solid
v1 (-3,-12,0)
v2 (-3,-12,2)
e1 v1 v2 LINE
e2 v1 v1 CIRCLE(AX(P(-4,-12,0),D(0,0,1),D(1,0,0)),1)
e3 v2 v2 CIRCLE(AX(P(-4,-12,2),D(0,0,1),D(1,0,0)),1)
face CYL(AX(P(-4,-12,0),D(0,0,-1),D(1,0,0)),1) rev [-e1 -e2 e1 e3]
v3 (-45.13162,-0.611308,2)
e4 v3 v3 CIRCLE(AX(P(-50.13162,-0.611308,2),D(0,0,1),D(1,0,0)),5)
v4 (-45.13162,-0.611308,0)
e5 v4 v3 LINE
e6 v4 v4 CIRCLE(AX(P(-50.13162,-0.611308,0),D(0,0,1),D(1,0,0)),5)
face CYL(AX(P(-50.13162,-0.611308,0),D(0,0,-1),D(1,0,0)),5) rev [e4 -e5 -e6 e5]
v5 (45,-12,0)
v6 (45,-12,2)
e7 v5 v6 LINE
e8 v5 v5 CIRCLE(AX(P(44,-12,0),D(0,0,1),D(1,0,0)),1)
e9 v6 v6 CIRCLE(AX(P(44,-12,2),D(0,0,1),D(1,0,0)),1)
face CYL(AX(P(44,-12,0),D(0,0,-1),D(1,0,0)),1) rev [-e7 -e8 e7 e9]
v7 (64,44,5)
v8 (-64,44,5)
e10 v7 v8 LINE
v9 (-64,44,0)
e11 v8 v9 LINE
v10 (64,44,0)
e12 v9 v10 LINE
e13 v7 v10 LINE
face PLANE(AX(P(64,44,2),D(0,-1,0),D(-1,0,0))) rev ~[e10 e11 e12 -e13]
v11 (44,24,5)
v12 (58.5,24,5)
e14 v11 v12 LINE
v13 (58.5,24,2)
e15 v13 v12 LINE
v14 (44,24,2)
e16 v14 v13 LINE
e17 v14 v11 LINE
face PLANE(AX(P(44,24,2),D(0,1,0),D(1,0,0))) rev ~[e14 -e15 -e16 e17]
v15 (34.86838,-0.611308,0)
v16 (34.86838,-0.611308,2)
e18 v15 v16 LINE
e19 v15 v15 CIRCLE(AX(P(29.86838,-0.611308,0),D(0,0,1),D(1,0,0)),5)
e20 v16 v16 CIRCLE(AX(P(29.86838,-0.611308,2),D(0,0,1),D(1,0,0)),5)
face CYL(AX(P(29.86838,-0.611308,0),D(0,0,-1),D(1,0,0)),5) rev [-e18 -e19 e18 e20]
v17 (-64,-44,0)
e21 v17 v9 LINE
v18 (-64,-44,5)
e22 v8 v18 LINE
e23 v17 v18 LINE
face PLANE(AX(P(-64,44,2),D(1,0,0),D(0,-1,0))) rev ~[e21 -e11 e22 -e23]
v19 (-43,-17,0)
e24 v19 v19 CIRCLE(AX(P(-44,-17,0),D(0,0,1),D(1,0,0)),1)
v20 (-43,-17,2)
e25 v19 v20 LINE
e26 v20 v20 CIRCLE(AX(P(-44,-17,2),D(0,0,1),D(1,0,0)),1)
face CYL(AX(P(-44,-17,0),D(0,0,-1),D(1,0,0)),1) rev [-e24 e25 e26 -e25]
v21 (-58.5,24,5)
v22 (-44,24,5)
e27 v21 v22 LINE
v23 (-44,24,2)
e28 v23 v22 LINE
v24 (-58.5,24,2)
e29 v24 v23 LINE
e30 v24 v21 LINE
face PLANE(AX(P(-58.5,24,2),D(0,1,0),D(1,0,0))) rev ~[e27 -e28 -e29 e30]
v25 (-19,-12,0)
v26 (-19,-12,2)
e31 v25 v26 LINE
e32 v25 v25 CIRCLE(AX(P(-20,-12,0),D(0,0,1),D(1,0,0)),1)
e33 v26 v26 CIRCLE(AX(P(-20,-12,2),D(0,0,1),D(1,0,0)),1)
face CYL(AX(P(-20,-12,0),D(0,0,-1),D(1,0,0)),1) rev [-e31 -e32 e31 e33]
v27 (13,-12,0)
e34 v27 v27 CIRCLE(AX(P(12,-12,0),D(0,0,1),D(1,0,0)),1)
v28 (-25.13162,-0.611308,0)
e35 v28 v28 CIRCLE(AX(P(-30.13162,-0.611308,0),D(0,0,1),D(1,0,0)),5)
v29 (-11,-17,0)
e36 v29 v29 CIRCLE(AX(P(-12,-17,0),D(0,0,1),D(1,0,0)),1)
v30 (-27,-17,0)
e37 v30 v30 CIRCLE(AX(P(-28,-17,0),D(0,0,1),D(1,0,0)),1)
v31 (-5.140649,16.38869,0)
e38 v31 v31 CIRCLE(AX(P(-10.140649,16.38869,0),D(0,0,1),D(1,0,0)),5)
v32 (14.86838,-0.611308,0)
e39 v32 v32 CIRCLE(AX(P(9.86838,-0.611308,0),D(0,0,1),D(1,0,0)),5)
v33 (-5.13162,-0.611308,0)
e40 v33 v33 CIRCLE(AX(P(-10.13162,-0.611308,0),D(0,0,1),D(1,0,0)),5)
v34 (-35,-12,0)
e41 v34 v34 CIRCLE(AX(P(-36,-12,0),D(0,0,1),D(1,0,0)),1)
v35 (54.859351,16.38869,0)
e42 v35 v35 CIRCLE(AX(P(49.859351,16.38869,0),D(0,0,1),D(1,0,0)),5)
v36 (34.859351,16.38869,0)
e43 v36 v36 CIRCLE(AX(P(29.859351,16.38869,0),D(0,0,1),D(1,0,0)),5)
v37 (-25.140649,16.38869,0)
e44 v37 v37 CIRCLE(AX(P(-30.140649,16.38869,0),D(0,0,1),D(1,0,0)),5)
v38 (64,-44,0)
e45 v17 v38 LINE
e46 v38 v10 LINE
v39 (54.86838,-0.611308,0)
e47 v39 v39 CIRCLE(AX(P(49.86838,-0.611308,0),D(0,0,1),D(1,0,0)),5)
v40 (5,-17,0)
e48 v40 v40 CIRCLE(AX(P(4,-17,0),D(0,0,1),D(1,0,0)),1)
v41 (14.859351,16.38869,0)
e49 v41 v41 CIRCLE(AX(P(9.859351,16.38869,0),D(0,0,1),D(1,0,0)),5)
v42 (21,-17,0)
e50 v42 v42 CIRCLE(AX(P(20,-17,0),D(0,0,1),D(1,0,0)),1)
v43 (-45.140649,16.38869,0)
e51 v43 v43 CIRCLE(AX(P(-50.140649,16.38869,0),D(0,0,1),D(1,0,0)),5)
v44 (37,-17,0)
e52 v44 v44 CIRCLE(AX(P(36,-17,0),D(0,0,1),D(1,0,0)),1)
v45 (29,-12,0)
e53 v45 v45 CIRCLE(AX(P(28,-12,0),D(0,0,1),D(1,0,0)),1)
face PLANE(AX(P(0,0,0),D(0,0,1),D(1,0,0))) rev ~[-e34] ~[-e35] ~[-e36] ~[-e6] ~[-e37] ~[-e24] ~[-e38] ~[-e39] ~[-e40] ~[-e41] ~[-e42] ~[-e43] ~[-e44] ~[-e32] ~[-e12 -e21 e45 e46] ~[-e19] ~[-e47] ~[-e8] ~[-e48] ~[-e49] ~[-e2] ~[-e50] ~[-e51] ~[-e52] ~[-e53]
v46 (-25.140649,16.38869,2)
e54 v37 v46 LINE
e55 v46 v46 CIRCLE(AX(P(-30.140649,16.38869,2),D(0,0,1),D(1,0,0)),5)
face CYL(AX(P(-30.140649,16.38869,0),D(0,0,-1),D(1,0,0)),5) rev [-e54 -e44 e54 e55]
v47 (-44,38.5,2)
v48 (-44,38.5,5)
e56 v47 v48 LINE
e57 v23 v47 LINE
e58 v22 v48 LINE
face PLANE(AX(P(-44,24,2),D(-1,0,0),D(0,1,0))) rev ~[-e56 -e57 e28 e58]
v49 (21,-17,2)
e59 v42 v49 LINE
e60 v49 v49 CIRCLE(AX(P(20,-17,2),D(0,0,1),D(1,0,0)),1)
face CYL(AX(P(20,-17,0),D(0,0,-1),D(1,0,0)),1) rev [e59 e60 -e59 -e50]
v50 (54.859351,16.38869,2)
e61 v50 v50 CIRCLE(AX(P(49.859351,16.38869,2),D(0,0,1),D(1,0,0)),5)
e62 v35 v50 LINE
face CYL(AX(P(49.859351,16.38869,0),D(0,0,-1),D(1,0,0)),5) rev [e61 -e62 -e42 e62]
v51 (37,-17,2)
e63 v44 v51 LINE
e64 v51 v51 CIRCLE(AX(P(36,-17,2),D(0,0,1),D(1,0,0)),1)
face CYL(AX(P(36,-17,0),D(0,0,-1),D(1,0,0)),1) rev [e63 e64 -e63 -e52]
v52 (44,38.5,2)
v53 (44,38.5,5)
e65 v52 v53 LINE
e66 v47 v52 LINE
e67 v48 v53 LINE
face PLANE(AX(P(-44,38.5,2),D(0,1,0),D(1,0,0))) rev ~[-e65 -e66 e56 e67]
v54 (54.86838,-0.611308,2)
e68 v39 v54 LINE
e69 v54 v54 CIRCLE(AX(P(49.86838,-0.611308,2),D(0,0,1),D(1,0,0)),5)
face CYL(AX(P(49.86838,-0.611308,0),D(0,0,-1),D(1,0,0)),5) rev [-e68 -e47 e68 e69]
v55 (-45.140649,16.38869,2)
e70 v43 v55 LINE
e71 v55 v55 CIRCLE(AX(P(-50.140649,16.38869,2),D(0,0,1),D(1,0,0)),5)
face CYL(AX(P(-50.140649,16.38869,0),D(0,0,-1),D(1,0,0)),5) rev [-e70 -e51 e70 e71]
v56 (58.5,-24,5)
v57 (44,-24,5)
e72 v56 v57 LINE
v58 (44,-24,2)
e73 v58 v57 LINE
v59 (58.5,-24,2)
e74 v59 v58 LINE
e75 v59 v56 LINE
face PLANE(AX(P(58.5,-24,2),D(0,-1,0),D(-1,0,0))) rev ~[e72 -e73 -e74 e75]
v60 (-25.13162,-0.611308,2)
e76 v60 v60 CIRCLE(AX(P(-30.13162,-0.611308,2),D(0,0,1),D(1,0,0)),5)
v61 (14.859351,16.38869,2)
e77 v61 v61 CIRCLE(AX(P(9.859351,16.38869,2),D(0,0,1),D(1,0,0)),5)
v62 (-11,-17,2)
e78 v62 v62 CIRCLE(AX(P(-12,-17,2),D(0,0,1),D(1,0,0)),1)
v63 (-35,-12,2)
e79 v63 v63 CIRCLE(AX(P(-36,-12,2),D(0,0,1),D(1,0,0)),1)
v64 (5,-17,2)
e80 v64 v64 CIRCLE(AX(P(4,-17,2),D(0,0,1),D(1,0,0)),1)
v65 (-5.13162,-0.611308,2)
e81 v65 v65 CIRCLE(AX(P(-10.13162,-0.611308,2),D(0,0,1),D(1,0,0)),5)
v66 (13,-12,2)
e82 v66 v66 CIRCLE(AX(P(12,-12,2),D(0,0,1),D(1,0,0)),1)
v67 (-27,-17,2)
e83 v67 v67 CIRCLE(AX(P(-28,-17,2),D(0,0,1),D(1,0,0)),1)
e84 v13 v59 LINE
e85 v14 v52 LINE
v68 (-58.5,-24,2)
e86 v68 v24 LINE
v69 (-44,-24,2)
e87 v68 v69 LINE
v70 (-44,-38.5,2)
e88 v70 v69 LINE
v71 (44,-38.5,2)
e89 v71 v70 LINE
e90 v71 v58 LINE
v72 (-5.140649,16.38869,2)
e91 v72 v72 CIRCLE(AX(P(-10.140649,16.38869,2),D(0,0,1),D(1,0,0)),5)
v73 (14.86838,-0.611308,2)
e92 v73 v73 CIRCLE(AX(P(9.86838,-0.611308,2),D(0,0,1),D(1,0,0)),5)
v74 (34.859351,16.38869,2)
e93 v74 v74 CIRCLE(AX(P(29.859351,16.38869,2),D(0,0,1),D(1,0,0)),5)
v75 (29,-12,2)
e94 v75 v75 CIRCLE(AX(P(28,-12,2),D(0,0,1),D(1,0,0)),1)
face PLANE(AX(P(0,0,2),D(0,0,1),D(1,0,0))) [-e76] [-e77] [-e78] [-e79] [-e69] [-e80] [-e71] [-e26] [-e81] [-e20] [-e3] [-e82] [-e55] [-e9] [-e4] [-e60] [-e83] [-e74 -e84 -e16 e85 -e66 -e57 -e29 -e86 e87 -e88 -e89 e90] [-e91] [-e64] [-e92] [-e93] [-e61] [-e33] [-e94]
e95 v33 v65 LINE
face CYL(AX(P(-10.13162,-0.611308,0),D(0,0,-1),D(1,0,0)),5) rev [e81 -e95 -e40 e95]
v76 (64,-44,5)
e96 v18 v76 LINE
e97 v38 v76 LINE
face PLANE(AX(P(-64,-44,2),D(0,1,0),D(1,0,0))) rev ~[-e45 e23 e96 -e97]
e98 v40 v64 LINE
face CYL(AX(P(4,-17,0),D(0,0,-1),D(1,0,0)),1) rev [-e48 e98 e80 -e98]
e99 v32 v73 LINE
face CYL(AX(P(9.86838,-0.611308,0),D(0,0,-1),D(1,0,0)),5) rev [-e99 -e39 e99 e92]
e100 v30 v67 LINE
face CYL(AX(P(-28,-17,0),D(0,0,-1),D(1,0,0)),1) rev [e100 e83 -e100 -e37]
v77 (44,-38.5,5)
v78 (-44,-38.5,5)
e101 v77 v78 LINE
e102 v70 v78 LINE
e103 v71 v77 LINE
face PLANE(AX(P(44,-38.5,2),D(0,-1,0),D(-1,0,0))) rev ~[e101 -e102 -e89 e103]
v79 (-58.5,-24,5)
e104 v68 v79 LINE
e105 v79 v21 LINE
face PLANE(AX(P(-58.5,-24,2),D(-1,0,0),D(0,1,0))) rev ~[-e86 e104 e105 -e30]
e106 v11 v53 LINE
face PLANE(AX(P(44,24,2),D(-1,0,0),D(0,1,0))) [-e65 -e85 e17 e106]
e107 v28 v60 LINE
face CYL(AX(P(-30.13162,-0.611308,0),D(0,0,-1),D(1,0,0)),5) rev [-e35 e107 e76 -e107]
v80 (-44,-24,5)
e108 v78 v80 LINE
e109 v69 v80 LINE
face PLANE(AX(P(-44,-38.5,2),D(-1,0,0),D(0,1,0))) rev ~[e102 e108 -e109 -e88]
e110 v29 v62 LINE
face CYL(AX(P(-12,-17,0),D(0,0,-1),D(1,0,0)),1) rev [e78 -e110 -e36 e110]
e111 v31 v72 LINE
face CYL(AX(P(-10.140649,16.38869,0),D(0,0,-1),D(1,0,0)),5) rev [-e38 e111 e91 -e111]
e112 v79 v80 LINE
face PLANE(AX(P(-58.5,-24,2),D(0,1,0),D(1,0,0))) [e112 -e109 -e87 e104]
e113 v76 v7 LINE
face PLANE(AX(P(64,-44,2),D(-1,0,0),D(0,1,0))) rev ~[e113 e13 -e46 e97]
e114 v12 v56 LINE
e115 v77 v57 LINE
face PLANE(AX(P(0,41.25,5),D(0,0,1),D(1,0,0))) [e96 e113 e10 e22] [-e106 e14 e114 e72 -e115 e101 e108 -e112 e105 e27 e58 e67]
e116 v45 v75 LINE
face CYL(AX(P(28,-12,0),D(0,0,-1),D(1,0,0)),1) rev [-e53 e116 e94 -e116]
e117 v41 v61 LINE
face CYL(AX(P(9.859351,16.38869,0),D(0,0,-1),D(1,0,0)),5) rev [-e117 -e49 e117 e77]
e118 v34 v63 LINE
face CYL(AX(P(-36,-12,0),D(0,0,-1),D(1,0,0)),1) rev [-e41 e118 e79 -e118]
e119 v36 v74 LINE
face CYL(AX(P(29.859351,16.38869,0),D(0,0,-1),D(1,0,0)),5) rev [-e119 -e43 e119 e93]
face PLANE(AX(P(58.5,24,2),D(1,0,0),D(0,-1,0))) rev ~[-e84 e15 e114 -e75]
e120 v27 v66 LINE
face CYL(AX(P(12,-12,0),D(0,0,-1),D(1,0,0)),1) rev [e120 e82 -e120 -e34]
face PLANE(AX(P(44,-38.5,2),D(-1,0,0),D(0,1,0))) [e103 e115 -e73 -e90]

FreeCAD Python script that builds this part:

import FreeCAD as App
import Part
import Sketcher

V = App.Vector
Q = App.Units.Quantity


def add_polygon(sketch, points):
    """Adds a closed chain of lines whose ends are joined by coincident constraints."""
    first, n = sketch.GeometryCount, len(points)
    for a, b in zip(points, points[1:] + points[:1]):
        sketch.addGeometry(Part.LineSegment(App.Vector(*a, 0), App.Vector(*b, 0)), False)
    for i in range(n):
        sketch.addConstraint(Sketcher.Constraint("Coincident", first + i, 2, first + (i + 1) % n, 1))

doc = App.newDocument("Part")
body = doc.addObject("PartDesign::Body", "Body")

sketch1 = doc.addObject("Sketcher::SketchObject", "Sketch")
body.addObject(sketch1)
sketch1.AttachmentSupport = (doc.XY_Plane, [""])
sketch1.MapMode = "FlatFace"
add_polygon(sketch1, [(-64, 44), (-64, -44), (64, -44), (64, 44)])
sketch1.addGeometry(Part.Circle(V(-44, -17, 0), V(0, 0, 1), 1), False)
sketch1.addGeometry(Part.Circle(V(-28, -17, 0), V(0, 0, 1), 1), False)
sketch1.addGeometry(Part.Circle(V(-36, -12, 0), V(0, 0, 1), 1), False)
sketch1.addGeometry(Part.Circle(V(-12, -17, 0), V(0, 0, 1), 1), False)
sketch1.addGeometry(Part.Circle(V(-20, -12, 0), V(0, 0, 1), 1), False)
sketch1.addGeometry(Part.Circle(V(-4, -12, 0), V(0, 0, 1), 1), False)
sketch1.addGeometry(Part.Circle(V(-50.1, -0.6, 0), V(0, 0, 1), 5), False)
sketch1.addGeometry(Part.Circle(V(-30.1, -0.6, 0), V(0, 0, 1), 5), False)
sketch1.addGeometry(Part.Circle(V(-10.1, -0.6, 0), V(0, 0, 1), 5), False)
sketch1.addGeometry(Part.Circle(V(4, -17, 0), V(0, 0, 1), 1), False)
sketch1.addGeometry(Part.Circle(V(20, -17, 0), V(0, 0, 1), 1), False)
sketch1.addGeometry(Part.Circle(V(12, -12, 0), V(0, 0, 1), 1), False)
sketch1.addGeometry(Part.Circle(V(36, -17, 0), V(0, 0, 1), 1), False)
sketch1.addGeometry(Part.Circle(V(28, -12, 0), V(0, 0, 1), 1), False)
sketch1.addGeometry(Part.Circle(V(44, -12, 0), V(0, 0, 1), 1), False)
sketch1.addGeometry(Part.Circle(V(9.9, -0.6, 0), V(0, 0, 1), 5), False)
sketch1.addGeometry(Part.Circle(V(29.9, -0.6, 0), V(0, 0, 1), 5), False)
sketch1.addGeometry(Part.Circle(V(49.9, -0.6, 0), V(0, 0, 1), 5), False)
sketch1.addGeometry(Part.Circle(V(-50.1, 16.4, 0), V(0, 0, 1), 5), False)
sketch1.addGeometry(Part.Circle(V(-30.1, 16.4, 0), V(0, 0, 1), 5), False)
sketch1.addGeometry(Part.Circle(V(-10.1, 16.4, 0), V(0, 0, 1), 5), False)
sketch1.addGeometry(Part.Circle(V(9.9, 16.4, 0), V(0, 0, 1), 5), False)
sketch1.addGeometry(Part.Circle(V(29.9, 16.4, 0), V(0, 0, 1), 5), False)
sketch1.addGeometry(Part.Circle(V(49.9, 16.4, 0), V(0, 0, 1), 5), False)
sketch1.addConstraint(Sketcher.Constraint("Vertical", 0))
sketch1.addConstraint(Sketcher.Constraint("Horizontal", 1))
sketch1.addConstraint(Sketcher.Constraint("Vertical", 2))
sketch1.addConstraint(Sketcher.Constraint("Horizontal", 3))
sketch1.addConstraint(Sketcher.Constraint("Equal", 4, 5))
sketch1.addConstraint(Sketcher.Constraint("Equal", 5, 6))
sketch1.addConstraint(Sketcher.Constraint("Equal", 6, 7))
sketch1.addConstraint(Sketcher.Constraint("Equal", 7, 8))
sketch1.addConstraint(Sketcher.Constraint("Equal", 8, 9))
sketch1.addConstraint(Sketcher.Constraint("Equal", 10, 11))
sketch1.addConstraint(Sketcher.Constraint("Equal", 11, 12))
sketch1.addConstraint(Sketcher.Constraint("Equal", 9, 13))
sketch1.addConstraint(Sketcher.Constraint("Equal", 13, 14))
sketch1.addConstraint(Sketcher.Constraint("Equal", 14, 15))
sketch1.addConstraint(Sketcher.Constraint("Equal", 15, 16))
sketch1.addConstraint(Sketcher.Constraint("Equal", 16, 17))
sketch1.addConstraint(Sketcher.Constraint("Equal", 17, 18))
sketch1.addConstraint(Sketcher.Constraint("Equal", 12, 19))
sketch1.addConstraint(Sketcher.Constraint("Equal", 19, 20))
sketch1.addConstraint(Sketcher.Constraint("Equal", 20, 21))
sketch1.addConstraint(Sketcher.Constraint("Equal", 21, 22))
sketch1.addConstraint(Sketcher.Constraint("Equal", 22, 23))
sketch1.addConstraint(Sketcher.Constraint("Equal", 23, 24))
sketch1.addConstraint(Sketcher.Constraint("Equal", 24, 25))
sketch1.addConstraint(Sketcher.Constraint("Equal", 25, 26))
sketch1.addConstraint(Sketcher.Constraint("Equal", 26, 27))
sketch1.addConstraint(Sketcher.Constraint("Symmetric", 0, 2, 2, 2, -1, 1))
sketch1.addConstraint(Sketcher.Constraint("Horizontal", 4, 3, 5, 3))
sketch1.addConstraint(Sketcher.Constraint("Horizontal", 5, 3, 7, 3))
sketch1.addConstraint(Sketcher.Constraint("Horizontal", 6, 3, 8, 3))
sketch1.addConstraint(Sketcher.Constraint("Horizontal", 8, 3, 9, 3))
sketch1.addConstraint(Sketcher.Constraint("Horizontal", 10, 3, 11, 3))
sketch1.addConstraint(Sketcher.Constraint("Horizontal", 11, 3, 12, 3))
sketch1.addConstraint(Sketcher.Constraint("Horizontal", 7, 3, 13, 3))
sketch1.addConstraint(Sketcher.Constraint("Horizontal", 13, 3, 14, 3))
sketch1.addConstraint(Sketcher.Constraint("Horizontal", 9, 3, 15, 3))
sketch1.addConstraint(Sketcher.Constraint("Horizontal", 14, 3, 16, 3))
sketch1.addConstraint(Sketcher.Constraint("Horizontal", 15, 3, 17, 3))
sketch1.addConstraint(Sketcher.Constraint("Horizontal", 17, 3, 18, 3))
sketch1.addConstraint(Sketcher.Constraint("Horizontal", 12, 3, 19, 3))
sketch1.addConstraint(Sketcher.Constraint("Horizontal", 19, 3, 20, 3))
sketch1.addConstraint(Sketcher.Constraint("Horizontal", 20, 3, 21, 3))
sketch1.addConstraint(Sketcher.Constraint("Horizontal", 22, 3, 23, 3))
sketch1.addConstraint(Sketcher.Constraint("Horizontal", 23, 3, 24, 3))
sketch1.addConstraint(Sketcher.Constraint("Horizontal", 24, 3, 25, 3))
sketch1.addConstraint(Sketcher.Constraint("Horizontal", 25, 3, 26, 3))
sketch1.addConstraint(Sketcher.Constraint("Horizontal", 26, 3, 27, 3))
sketch1.addConstraint(Sketcher.Constraint("Diameter", 4, Q("2 mm")))
sketch1.addConstraint(Sketcher.Constraint("Diameter", 10, Q("10 mm")))
sketch1.addConstraint(Sketcher.Constraint("DistanceX", 1, 1, 1, 2, Q("128 mm")))
sketch1.addConstraint(Sketcher.Constraint("DistanceY", 0, 2, 0, 1, Q("88 mm")))
sketch1.addConstraint(Sketcher.Constraint("DistanceX", 4, 3, -1, 1, Q("44 mm")))
sketch1.addConstraint(Sketcher.Constraint("DistanceY", 4, 3, -1, 1, Q("17 mm")))
sketch1.addConstraint(Sketcher.Constraint("DistanceX", 5, 3, -1, 1, Q("28 mm")))
sketch1.addConstraint(Sketcher.Constraint("DistanceX", 6, 3, -1, 1, Q("36 mm")))
sketch1.addConstraint(Sketcher.Constraint("DistanceY", 6, 3, -1, 1, Q("12 mm")))
sketch1.addConstraint(Sketcher.Constraint("DistanceX", 7, 3, -1, 1, Q("12 mm")))
sketch1.addConstraint(Sketcher.Constraint("DistanceX", 8, 3, -1, 1, Q("20 mm")))
sketch1.addConstraint(Sketcher.Constraint("DistanceX", 9, 3, -1, 1, Q("4 mm")))
sketch1.addConstraint(Sketcher.Constraint("DistanceX", -1, 1, 13, 3, Q("4 mm")))
sketch1.addConstraint(Sketcher.Constraint("DistanceX", -1, 1, 14, 3, Q("20 mm")))
sketch1.addConstraint(Sketcher.Constraint("DistanceX", -1, 1, 15, 3, Q("12 mm")))
sketch1.addConstraint(Sketcher.Constraint("DistanceX", -1, 1, 16, 3, Q("36 mm")))
sketch1.addConstraint(Sketcher.Constraint("DistanceX", -1, 1, 17, 3, Q("28 mm")))
sketch1.addConstraint(Sketcher.Constraint("DistanceX", -1, 1, 18, 3, Q("44 mm")))
sketch1.addConstraint(Sketcher.Constraint("DistanceX", 10, 3, 11, 3, Q("20 mm")))
sketch1.addConstraint(Sketcher.Constraint("DistanceX", 11, 3, 12, 3, Q("20 mm")))
sketch1.addConstraint(Sketcher.Constraint("DistanceX", 12, 3, 19, 3, Q("20 mm")))
sketch1.addConstraint(Sketcher.Constraint("DistanceX", 19, 3, 20, 3, Q("20 mm")))
sketch1.addConstraint(Sketcher.Constraint("DistanceX", 20, 3, 21, 3, Q("20 mm")))
sketch1.addConstraint(Sketcher.Constraint("DistanceY", 10, 3, 22, 3, Q("16.999998 mm")))
sketch1.addConstraint(Sketcher.Constraint("DistanceX", 22, 3, 23, 3, Q("20 mm")))
sketch1.addConstraint(Sketcher.Constraint("DistanceX", 23, 3, 24, 3, Q("20 mm")))
sketch1.addConstraint(Sketcher.Constraint("DistanceX", 24, 3, 25, 3, Q("20 mm")))
sketch1.addConstraint(Sketcher.Constraint("DistanceX", 25, 3, 26, 3, Q("20 mm")))
sketch1.addConstraint(Sketcher.Constraint("DistanceX", 26, 3, 27, 3, Q("20 mm")))
sketch1.addConstraint(Sketcher.Constraint("DistanceX", 10, 3, -1, 1, Q("50.13162 mm")))
sketch1.addConstraint(Sketcher.Constraint("DistanceX", 22, 3, -1, 1, Q("50.140649 mm")))
sketch1.addConstraint(Sketcher.Constraint("DistanceY", -1, 1, 22, 3, Q("16.38869 mm")))
pad1 = doc.addObject("PartDesign::Pad", "Pad")
body.addObject(pad1)
pad1.Profile = sketch1
pad1.Length = 2

sketch2 = doc.addObject("Sketcher::SketchObject", "Sketch001")
body.addObject(sketch2)
sketch2.AttachmentSupport = (doc.XY_Plane, [""])
sketch2.MapMode = "FlatFace"
sketch2.AttachmentOffset = App.Placement(V(0, 0, 2), App.Rotation())
add_polygon(sketch2, [(-64, 44), (-64, -44), (64, -44), (64, 44)])
add_polygon(sketch2, [(58, -24), (44, -24), (44, -38), (-44, -38), (-44, -24), (-58, -24), (-58, 24), (-44, 24), (-44, 38), (44, 38), (44, 24), (58, 24)])
sketch2.addConstraint(Sketcher.Constraint("Vertical", 0))
sketch2.addConstraint(Sketcher.Constraint("Horizontal", 1))
sketch2.addConstraint(Sketcher.Constraint("Vertical", 2))
sketch2.addConstraint(Sketcher.Constraint("Horizontal", 3))
sketch2.addConstraint(Sketcher.Constraint("Horizontal", 4))
sketch2.addConstraint(Sketcher.Constraint("Vertical", 5))
sketch2.addConstraint(Sketcher.Constraint("Horizontal", 6))
sketch2.addConstraint(Sketcher.Constraint("Vertical", 7))
sketch2.addConstraint(Sketcher.Constraint("Horizontal", 8))
sketch2.addConstraint(Sketcher.Constraint("Vertical", 9))
sketch2.addConstraint(Sketcher.Constraint("Horizontal", 10))
sketch2.addConstraint(Sketcher.Constraint("Vertical", 11))
sketch2.addConstraint(Sketcher.Constraint("Horizontal", 12))
sketch2.addConstraint(Sketcher.Constraint("Vertical", 13))
sketch2.addConstraint(Sketcher.Constraint("Horizontal", 14))
sketch2.addConstraint(Sketcher.Constraint("Vertical", 15))
sketch2.addConstraint(Sketcher.Constraint("Symmetric", 0, 2, 2, 2, -1, 1))
sketch2.addConstraint(Sketcher.Constraint("Symmetric", 4, 2, 10, 2, -1, 1))
sketch2.addConstraint(Sketcher.Constraint("Symmetric", 6, 2, 12, 2, -1, 1))
sketch2.addConstraint(Sketcher.Constraint("Symmetric", 8, 2, 14, 2, -1, 1))
sketch2.addConstraint(Sketcher.Constraint("Symmetric", 4, 2, 7, 2, -2))
sketch2.addConstraint(Sketcher.Constraint("Equal", 12, 0))
sketch2.addConstraint(Sketcher.Constraint("Equal", 14, 5))
sketch2.addConstraint(Sketcher.Constraint("DistanceX", 1, 1, 1, 2, Q("128 mm")))
sketch2.addConstraint(Sketcher.Constraint("DistanceX", 6, 2, 6, 1, Q("88 mm")))
sketch2.addConstraint(Sketcher.Constraint("DistanceY", 9, 1, 9, 2, Q("48 mm")))
sketch2.addConstraint(Sketcher.Constraint("DistanceX", 4, 2, 4, 1, Q("14.5 mm")))
pad2 = doc.addObject("PartDesign::Pad", "Pad001")
body.addObject(pad2)
pad2.Profile = sketch2
pad2.Length = 3

doc.recompute()
